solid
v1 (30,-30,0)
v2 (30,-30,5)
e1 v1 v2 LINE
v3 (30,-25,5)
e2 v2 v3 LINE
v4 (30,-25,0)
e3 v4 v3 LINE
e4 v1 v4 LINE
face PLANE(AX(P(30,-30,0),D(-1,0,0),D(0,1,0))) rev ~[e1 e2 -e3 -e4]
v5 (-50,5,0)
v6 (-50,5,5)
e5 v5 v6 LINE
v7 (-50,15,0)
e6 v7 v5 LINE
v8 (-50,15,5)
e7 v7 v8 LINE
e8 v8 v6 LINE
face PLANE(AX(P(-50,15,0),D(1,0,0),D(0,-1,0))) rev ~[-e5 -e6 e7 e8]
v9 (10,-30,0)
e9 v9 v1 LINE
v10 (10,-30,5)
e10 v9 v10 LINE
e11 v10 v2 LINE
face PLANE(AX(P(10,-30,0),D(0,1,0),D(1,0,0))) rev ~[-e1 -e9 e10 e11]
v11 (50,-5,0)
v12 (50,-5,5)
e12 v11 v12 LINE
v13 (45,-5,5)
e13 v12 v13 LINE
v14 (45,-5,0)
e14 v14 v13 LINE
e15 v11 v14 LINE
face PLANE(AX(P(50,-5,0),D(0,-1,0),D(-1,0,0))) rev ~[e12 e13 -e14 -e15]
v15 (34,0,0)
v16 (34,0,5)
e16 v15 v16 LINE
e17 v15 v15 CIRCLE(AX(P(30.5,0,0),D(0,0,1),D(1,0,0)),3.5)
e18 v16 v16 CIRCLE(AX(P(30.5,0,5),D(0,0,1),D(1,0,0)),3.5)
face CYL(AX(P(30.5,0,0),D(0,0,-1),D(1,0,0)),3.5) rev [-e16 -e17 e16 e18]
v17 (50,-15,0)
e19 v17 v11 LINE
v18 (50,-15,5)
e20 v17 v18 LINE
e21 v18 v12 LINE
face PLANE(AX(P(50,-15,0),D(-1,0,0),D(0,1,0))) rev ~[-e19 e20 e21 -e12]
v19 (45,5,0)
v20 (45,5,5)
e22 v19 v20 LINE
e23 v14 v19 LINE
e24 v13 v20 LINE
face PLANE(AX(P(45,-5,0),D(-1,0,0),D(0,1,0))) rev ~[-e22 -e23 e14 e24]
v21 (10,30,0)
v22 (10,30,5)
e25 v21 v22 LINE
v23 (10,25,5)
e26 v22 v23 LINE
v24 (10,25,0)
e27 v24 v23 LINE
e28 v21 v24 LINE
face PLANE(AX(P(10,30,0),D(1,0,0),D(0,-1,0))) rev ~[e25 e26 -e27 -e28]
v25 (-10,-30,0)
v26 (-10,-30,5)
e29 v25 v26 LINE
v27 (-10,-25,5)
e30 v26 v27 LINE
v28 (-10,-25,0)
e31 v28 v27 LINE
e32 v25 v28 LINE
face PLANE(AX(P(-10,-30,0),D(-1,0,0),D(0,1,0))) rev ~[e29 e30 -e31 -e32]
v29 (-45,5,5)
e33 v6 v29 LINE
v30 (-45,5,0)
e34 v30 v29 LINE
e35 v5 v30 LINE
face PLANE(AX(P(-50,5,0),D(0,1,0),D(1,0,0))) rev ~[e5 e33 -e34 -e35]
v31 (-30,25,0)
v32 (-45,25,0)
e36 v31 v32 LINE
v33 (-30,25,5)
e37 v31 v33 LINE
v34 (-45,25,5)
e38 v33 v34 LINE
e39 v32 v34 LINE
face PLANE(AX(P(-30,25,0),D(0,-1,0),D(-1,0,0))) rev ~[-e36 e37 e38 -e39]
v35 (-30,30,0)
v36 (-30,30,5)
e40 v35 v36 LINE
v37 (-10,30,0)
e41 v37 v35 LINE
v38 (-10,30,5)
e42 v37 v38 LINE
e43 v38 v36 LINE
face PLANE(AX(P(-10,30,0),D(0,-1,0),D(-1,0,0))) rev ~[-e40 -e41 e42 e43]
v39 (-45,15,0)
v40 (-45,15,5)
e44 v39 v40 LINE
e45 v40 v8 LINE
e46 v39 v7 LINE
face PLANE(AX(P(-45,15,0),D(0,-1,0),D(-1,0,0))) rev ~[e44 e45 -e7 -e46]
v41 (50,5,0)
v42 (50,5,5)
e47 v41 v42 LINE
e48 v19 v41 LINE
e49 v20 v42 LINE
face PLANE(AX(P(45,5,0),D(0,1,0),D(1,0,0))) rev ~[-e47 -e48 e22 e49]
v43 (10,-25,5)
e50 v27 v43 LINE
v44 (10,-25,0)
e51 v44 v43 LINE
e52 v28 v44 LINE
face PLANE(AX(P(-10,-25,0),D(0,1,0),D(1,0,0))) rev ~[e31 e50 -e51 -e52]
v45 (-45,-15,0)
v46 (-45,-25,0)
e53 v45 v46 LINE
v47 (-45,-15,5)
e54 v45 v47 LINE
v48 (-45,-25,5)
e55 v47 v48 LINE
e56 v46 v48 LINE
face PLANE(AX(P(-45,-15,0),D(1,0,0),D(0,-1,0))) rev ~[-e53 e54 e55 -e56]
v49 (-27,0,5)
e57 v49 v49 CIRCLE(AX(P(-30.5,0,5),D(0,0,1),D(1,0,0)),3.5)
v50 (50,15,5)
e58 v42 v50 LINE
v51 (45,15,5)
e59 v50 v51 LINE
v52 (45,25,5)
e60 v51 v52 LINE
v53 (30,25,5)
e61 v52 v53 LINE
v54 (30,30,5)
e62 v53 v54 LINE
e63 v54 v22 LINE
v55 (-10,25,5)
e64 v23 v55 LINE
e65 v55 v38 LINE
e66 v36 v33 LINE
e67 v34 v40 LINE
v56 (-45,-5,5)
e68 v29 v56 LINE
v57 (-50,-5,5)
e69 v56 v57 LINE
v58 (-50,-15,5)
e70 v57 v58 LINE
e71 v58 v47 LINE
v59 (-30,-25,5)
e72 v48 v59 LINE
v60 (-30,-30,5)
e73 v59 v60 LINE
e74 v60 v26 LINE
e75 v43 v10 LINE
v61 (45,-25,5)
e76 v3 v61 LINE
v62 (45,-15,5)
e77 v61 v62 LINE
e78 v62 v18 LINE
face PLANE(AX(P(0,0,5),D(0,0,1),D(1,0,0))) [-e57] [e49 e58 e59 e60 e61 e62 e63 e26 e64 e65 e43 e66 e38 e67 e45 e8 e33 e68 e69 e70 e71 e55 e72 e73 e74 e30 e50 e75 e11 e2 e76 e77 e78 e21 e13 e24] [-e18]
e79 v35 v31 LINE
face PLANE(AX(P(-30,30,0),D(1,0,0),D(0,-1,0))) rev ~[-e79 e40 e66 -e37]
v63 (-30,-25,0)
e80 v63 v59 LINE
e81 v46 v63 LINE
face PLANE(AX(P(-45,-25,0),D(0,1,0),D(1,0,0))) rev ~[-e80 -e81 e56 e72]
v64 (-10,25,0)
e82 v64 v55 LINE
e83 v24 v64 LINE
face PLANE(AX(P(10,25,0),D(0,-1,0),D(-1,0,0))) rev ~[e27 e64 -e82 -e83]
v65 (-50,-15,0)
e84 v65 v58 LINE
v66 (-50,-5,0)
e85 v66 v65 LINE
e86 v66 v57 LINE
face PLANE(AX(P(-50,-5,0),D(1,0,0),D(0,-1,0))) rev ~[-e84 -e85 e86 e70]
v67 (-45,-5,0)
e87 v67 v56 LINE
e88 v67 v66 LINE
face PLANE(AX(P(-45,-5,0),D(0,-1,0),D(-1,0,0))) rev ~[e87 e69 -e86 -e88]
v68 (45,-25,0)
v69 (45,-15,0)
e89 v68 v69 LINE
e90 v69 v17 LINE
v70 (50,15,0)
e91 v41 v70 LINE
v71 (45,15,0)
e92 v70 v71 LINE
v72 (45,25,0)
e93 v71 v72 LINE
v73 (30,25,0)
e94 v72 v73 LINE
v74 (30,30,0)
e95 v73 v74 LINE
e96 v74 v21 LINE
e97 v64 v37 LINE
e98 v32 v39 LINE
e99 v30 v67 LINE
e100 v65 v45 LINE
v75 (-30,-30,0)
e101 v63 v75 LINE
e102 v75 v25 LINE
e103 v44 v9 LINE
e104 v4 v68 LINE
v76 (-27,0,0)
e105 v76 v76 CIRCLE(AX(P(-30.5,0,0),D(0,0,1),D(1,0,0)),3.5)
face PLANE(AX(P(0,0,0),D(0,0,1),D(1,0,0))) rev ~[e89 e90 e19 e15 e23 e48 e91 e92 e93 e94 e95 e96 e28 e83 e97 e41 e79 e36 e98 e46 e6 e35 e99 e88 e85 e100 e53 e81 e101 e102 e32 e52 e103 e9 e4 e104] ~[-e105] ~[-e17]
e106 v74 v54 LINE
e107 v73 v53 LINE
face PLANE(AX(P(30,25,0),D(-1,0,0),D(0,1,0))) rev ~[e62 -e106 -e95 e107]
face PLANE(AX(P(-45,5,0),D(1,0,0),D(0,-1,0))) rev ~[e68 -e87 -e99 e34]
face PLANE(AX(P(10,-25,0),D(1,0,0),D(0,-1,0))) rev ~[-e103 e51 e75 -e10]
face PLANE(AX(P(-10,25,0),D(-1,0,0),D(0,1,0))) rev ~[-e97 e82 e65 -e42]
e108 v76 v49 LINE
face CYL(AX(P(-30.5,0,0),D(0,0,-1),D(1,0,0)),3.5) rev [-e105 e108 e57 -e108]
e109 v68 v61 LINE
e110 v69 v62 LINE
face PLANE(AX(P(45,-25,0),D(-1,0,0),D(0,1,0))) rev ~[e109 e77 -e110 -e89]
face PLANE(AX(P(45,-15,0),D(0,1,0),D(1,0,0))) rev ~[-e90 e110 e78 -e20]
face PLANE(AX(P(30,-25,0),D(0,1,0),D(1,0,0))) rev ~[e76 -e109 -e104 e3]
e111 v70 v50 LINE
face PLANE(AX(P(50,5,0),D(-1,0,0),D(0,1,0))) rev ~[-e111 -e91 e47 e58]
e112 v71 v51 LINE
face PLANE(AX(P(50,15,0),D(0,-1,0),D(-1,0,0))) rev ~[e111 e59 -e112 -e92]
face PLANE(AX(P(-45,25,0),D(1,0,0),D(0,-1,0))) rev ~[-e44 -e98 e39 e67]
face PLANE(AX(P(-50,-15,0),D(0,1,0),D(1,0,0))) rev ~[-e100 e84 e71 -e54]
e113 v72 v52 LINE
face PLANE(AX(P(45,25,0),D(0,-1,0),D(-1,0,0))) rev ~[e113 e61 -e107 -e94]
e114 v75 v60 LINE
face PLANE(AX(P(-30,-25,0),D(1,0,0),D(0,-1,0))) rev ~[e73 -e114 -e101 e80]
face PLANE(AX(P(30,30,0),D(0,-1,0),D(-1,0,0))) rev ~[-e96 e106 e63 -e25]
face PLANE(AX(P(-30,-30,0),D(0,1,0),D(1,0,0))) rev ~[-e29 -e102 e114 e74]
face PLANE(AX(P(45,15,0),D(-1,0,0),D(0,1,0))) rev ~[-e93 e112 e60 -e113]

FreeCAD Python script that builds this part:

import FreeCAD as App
import Part
import Sketcher
from FreeCAD import Vector

doc = App.newDocument("Part")
body = doc.addObject("PartDesign::Body", "Body")

sketch1 = body.newObject("Sketcher::SketchObject", "Sketch")
sketch1.AttachmentSupport = (doc.getObject("XY_Plane"), [""])
sketch1.MapMode = "FlatFace"
sketch1.addGeometry([
    Part.LineSegment(Vector(45, 15, 0), Vector(45, 25, 0)),
    Part.LineSegment(Vector(45, 25, 0), Vector(30, 25, 0)),
    Part.LineSegment(Vector(30, 25, 0), Vector(30, 30, 0)),
    Part.LineSegment(Vector(30, 30, 0), Vector(10, 30, 0)),
    Part.LineSegment(Vector(10, 30, 0), Vector(10, 25, 0)),
    Part.LineSegment(Vector(10, 25, 0), Vector(-10, 25, 0)),
    Part.LineSegment(Vector(-10, 25, 0), Vector(-10, 30, 0)),
    Part.LineSegment(Vector(-10, 30, 0), Vector(-30, 30, 0)),
    Part.LineSegment(Vector(-30, 30, 0), Vector(-30, 25, 0)),
    Part.LineSegment(Vector(-30, 25, 0), Vector(-45, 25, 0)),
    Part.LineSegment(Vector(-45, 25, 0), Vector(-45, 15, 0)),
    Part.LineSegment(Vector(-45, 15, 0), Vector(-50, 15, 0)),
    Part.LineSegment(Vector(-50, 15, 0), Vector(-50, 5, 0)),
    Part.LineSegment(Vector(-50, 5, 0), Vector(-45, 5, 0)),
    Part.LineSegment(Vector(-45, 5, 0), Vector(-45, -5, 0)),
    Part.LineSegment(Vector(-45, -5, 0), Vector(-50, -5, 0)),
    Part.LineSegment(Vector(-50, -5, 0), Vector(-50, -15, 0)),
    Part.LineSegment(Vector(-50, -15, 0), Vector(-45, -15, 0)),
    Part.LineSegment(Vector(-45, -15, 0), Vector(-45, -25, 0)),
    Part.LineSegment(Vector(-45, -25, 0), Vector(-30, -25, 0)),
    Part.LineSegment(Vector(-30, -25, 0), Vector(-30, -30, 0)),
    Part.LineSegment(Vector(-30, -30, 0), Vector(-10, -30, 0)),
    Part.LineSegment(Vector(-10, -30, 0), Vector(-10, -25, 0)),
    Part.LineSegment(Vector(-10, -25, 0), Vector(10, -25, 0)),
    Part.LineSegment(Vector(10, -25, 0), Vector(10, -30, 0)),
    Part.LineSegment(Vector(10, -30, 0), Vector(30, -30, 0)),
    Part.LineSegment(Vector(30, -30, 0), Vector(30, -25, 0)),
    Part.LineSegment(Vector(30, -25, 0), Vector(45, -25, 0)),
    Part.LineSegment(Vector(45, -25, 0), Vector(45, -15, 0)),
    Part.LineSegment(Vector(45, -15, 0), Vector(50, -15, 0)),
    Part.LineSegment(Vector(50, -15, 0), Vector(50, -5, 0)),
    Part.LineSegment(Vector(50, -5, 0), Vector(45, -5, 0)),
    Part.LineSegment(Vector(45, -5, 0), Vector(45, 5, 0)),
    Part.LineSegment(Vector(45, 5, 0), Vector(50, 5, 0)),
    Part.LineSegment(Vector(50, 5, 0), Vector(50, 15, 0)),
    Part.LineSegment(Vector(50, 15, 0), Vector(45, 15, 0)),
    Part.Circle(Vector(-30.5, 0, 0), Vector(0, 0, 1), 3.5),
    Part.Circle(Vector(30.5, 0, 0), Vector(0, 0, 1), 3.5),
], False)
sketch1.addConstraint([
    Sketcher.Constraint("Coincident", 0, 2, 1, 1),
    Sketcher.Constraint("Coincident", 1, 2, 2, 1),
    Sketcher.Constraint("Coincident", 2, 2, 3, 1),
    Sketcher.Constraint("Coincident", 3, 2, 4, 1),
    Sketcher.Constraint("Coincident", 4, 2, 5, 1),
    Sketcher.Constraint("Coincident", 5, 2, 6, 1),
    Sketcher.Constraint("Coincident", 6, 2, 7, 1),
    Sketcher.Constraint("Coincident", 7, 2, 8, 1),
    Sketcher.Constraint("Coincident", 8, 2, 9, 1),
    Sketcher.Constraint("Coincident", 9, 2, 10, 1),
    Sketcher.Constraint("Coincident", 10, 2, 11, 1),
    Sketcher.Constraint("Coincident", 11, 2, 12, 1),
    Sketcher.Constraint("Coincident", 12, 2, 13, 1),
    Sketcher.Constraint("Coincident", 13, 2, 14, 1),
    Sketcher.Constraint("Coincident", 14, 2, 15, 1),
    Sketcher.Constraint("Coincident", 15, 2, 16, 1),
    Sketcher.Constraint("Coincident", 16, 2, 17, 1),
    Sketcher.Constraint("Coincident", 17, 2, 18, 1),
    Sketcher.Constraint("Coincident", 18, 2, 19, 1),
    Sketcher.Constraint("Coincident", 19, 2, 20, 1),
    Sketcher.Constraint("Coincident", 20, 2, 21, 1),
    Sketcher.Constraint("Coincident", 21, 2, 22, 1),
    Sketcher.Constraint("Coincident", 22, 2, 23, 1),
    Sketcher.Constraint("Coincident", 23, 2, 24, 1),
    Sketcher.Constraint("Coincident", 24, 2, 25, 1),
    Sketcher.Constraint("Coincident", 25, 2, 26, 1),
    Sketcher.Constraint("Coincident", 26, 2, 27, 1),
    Sketcher.Constraint("Coincident", 27, 2, 28, 1),
    Sketcher.Constraint("Coincident", 28, 2, 29, 1),
    Sketcher.Constraint("Coincident", 29, 2, 30, 1),
    Sketcher.Constraint("Coincident", 30, 2, 31, 1),
    Sketcher.Constraint("Coincident", 31, 2, 32, 1),
    Sketcher.Constraint("Coincident", 32, 2, 33, 1),
    Sketcher.Constraint("Coincident", 33, 2, 34, 1),
    Sketcher.Constraint("Coincident", 34, 2, 35, 1),
    Sketcher.Constraint("Coincident", 35, 2, 0, 1),
    Sketcher.Constraint("Vertical", 0),
    Sketcher.Constraint("Horizontal", 1),
    Sketcher.Constraint("Vertical", 2),
    Sketcher.Constraint("Horizontal", 3),
    Sketcher.Constraint("Vertical", 4),
    Sketcher.Constraint("Horizontal", 5),
    Sketcher.Constraint("Vertical", 6),
    Sketcher.Constraint("Horizontal", 7),
    Sketcher.Constraint("Vertical", 8),
    Sketcher.Constraint("Horizontal", 9),
    Sketcher.Constraint("Vertical", 10),
    Sketcher.Constraint("Horizontal", 11),
    Sketcher.Constraint("Vertical", 12),
    Sketcher.Constraint("Horizontal", 13),
    Sketcher.Constraint("Vertical", 14),
    Sketcher.Constraint("Horizontal", 15),
    Sketcher.Constraint("Vertical", 16),
    Sketcher.Constraint("Horizontal", 17),
    Sketcher.Constraint("Vertical", 18),
    Sketcher.Constraint("Horizontal", 19),
    Sketcher.Constraint("Vertical", 20),
    Sketcher.Constraint("Horizontal", 21),
    Sketcher.Constraint("Vertical", 22),
    Sketcher.Constraint("Horizontal", 23),
    Sketcher.Constraint("Vertical", 24),
    Sketcher.Constraint("Horizontal", 25),
    Sketcher.Constraint("Vertical", 26),
    Sketcher.Constraint("Horizontal", 27),
    Sketcher.Constraint("Vertical", 28),
    Sketcher.Constraint("Horizontal", 29),
    Sketcher.Constraint("Vertical", 30),
    Sketcher.Constraint("Horizontal", 31),
    Sketcher.Constraint("Vertical", 32),
    Sketcher.Constraint("Horizontal", 33),
    Sketcher.Constraint("Vertical", 34),
    Sketcher.Constraint("Horizontal", 35),
    Sketcher.Constraint("Equal", 36, 37),
    Sketcher.Constraint("Symmetric", 36, 3, 37, 3, -1, 1),
    Sketcher.Constraint("Symmetric", 0, 2, 18, 2, -1, 1),
    Sketcher.Constraint("Symmetric", 2, 2, 20, 2, -1, 1),
    Sketcher.Constraint("Symmetric", 4, 2, 22, 2, -1, 1),
    Sketcher.Constraint("Symmetric", 6, 2, 24, 2, -1, 1),
    Sketcher.Constraint("Symmetric", 8, 2, 26, 2, -1, 1),
    Sketcher.Constraint("Symmetric", 10, 2, 28, 2, -1, 1),
    Sketcher.Constraint("Symmetric", 12, 2, 30, 2, -1, 1),
    Sketcher.Constraint("Symmetric", 14, 2, 32, 2, -1, 1),
    Sketcher.Constraint("Symmetric", 16, 2, 34, 2, -1, 1),
    Sketcher.Constraint("Symmetric", 3, 2, 6, 2, -2),
    Sketcher.Constraint("Symmetric", 1, 2, 8, 2, -2),
    Sketcher.Constraint("Symmetric", 17, 2, 28, 2, -2),
    Sketcher.Constraint("Symmetric", 15, 2, 30, 2, -2),
    Sketcher.Constraint("PointOnObject", 36, 3, -1),
    Sketcher.Constraint("Horizontal", 1, 2, 4, 2),
    Sketcher.Constraint("Vertical", 10, 2, 13, 2),
    Sketcher.Constraint("Equal", 3, 5),
    Sketcher.Constraint("Equal", 35, 2),
    Sketcher.Constraint("Equal", 10, 12),
    Sketcher.Constraint("Equal", 12, 14),
    Sketcher.Constraint("Diameter", 36, 7.0),
    Sketcher.Constraint("DistanceX", 1, 2, 1, 1, 15.0),
    Sketcher.Constraint("DistanceX", 3, 2, 3, 1, 20.0),
    Sketcher.Constraint("DistanceX", 11, 2, 11, 1, 5.0),
    Sketcher.Constraint("DistanceY", 0, 1, 0, 2, 10.0),
    Sketcher.Constraint("DistanceX", 36, 3, 37, 3, 61.0),
])
pad1 = body.newObject("PartDesign::Pad", "Pad")
pad1.Profile = sketch1
pad1.Length = 5

doc.recompute()
